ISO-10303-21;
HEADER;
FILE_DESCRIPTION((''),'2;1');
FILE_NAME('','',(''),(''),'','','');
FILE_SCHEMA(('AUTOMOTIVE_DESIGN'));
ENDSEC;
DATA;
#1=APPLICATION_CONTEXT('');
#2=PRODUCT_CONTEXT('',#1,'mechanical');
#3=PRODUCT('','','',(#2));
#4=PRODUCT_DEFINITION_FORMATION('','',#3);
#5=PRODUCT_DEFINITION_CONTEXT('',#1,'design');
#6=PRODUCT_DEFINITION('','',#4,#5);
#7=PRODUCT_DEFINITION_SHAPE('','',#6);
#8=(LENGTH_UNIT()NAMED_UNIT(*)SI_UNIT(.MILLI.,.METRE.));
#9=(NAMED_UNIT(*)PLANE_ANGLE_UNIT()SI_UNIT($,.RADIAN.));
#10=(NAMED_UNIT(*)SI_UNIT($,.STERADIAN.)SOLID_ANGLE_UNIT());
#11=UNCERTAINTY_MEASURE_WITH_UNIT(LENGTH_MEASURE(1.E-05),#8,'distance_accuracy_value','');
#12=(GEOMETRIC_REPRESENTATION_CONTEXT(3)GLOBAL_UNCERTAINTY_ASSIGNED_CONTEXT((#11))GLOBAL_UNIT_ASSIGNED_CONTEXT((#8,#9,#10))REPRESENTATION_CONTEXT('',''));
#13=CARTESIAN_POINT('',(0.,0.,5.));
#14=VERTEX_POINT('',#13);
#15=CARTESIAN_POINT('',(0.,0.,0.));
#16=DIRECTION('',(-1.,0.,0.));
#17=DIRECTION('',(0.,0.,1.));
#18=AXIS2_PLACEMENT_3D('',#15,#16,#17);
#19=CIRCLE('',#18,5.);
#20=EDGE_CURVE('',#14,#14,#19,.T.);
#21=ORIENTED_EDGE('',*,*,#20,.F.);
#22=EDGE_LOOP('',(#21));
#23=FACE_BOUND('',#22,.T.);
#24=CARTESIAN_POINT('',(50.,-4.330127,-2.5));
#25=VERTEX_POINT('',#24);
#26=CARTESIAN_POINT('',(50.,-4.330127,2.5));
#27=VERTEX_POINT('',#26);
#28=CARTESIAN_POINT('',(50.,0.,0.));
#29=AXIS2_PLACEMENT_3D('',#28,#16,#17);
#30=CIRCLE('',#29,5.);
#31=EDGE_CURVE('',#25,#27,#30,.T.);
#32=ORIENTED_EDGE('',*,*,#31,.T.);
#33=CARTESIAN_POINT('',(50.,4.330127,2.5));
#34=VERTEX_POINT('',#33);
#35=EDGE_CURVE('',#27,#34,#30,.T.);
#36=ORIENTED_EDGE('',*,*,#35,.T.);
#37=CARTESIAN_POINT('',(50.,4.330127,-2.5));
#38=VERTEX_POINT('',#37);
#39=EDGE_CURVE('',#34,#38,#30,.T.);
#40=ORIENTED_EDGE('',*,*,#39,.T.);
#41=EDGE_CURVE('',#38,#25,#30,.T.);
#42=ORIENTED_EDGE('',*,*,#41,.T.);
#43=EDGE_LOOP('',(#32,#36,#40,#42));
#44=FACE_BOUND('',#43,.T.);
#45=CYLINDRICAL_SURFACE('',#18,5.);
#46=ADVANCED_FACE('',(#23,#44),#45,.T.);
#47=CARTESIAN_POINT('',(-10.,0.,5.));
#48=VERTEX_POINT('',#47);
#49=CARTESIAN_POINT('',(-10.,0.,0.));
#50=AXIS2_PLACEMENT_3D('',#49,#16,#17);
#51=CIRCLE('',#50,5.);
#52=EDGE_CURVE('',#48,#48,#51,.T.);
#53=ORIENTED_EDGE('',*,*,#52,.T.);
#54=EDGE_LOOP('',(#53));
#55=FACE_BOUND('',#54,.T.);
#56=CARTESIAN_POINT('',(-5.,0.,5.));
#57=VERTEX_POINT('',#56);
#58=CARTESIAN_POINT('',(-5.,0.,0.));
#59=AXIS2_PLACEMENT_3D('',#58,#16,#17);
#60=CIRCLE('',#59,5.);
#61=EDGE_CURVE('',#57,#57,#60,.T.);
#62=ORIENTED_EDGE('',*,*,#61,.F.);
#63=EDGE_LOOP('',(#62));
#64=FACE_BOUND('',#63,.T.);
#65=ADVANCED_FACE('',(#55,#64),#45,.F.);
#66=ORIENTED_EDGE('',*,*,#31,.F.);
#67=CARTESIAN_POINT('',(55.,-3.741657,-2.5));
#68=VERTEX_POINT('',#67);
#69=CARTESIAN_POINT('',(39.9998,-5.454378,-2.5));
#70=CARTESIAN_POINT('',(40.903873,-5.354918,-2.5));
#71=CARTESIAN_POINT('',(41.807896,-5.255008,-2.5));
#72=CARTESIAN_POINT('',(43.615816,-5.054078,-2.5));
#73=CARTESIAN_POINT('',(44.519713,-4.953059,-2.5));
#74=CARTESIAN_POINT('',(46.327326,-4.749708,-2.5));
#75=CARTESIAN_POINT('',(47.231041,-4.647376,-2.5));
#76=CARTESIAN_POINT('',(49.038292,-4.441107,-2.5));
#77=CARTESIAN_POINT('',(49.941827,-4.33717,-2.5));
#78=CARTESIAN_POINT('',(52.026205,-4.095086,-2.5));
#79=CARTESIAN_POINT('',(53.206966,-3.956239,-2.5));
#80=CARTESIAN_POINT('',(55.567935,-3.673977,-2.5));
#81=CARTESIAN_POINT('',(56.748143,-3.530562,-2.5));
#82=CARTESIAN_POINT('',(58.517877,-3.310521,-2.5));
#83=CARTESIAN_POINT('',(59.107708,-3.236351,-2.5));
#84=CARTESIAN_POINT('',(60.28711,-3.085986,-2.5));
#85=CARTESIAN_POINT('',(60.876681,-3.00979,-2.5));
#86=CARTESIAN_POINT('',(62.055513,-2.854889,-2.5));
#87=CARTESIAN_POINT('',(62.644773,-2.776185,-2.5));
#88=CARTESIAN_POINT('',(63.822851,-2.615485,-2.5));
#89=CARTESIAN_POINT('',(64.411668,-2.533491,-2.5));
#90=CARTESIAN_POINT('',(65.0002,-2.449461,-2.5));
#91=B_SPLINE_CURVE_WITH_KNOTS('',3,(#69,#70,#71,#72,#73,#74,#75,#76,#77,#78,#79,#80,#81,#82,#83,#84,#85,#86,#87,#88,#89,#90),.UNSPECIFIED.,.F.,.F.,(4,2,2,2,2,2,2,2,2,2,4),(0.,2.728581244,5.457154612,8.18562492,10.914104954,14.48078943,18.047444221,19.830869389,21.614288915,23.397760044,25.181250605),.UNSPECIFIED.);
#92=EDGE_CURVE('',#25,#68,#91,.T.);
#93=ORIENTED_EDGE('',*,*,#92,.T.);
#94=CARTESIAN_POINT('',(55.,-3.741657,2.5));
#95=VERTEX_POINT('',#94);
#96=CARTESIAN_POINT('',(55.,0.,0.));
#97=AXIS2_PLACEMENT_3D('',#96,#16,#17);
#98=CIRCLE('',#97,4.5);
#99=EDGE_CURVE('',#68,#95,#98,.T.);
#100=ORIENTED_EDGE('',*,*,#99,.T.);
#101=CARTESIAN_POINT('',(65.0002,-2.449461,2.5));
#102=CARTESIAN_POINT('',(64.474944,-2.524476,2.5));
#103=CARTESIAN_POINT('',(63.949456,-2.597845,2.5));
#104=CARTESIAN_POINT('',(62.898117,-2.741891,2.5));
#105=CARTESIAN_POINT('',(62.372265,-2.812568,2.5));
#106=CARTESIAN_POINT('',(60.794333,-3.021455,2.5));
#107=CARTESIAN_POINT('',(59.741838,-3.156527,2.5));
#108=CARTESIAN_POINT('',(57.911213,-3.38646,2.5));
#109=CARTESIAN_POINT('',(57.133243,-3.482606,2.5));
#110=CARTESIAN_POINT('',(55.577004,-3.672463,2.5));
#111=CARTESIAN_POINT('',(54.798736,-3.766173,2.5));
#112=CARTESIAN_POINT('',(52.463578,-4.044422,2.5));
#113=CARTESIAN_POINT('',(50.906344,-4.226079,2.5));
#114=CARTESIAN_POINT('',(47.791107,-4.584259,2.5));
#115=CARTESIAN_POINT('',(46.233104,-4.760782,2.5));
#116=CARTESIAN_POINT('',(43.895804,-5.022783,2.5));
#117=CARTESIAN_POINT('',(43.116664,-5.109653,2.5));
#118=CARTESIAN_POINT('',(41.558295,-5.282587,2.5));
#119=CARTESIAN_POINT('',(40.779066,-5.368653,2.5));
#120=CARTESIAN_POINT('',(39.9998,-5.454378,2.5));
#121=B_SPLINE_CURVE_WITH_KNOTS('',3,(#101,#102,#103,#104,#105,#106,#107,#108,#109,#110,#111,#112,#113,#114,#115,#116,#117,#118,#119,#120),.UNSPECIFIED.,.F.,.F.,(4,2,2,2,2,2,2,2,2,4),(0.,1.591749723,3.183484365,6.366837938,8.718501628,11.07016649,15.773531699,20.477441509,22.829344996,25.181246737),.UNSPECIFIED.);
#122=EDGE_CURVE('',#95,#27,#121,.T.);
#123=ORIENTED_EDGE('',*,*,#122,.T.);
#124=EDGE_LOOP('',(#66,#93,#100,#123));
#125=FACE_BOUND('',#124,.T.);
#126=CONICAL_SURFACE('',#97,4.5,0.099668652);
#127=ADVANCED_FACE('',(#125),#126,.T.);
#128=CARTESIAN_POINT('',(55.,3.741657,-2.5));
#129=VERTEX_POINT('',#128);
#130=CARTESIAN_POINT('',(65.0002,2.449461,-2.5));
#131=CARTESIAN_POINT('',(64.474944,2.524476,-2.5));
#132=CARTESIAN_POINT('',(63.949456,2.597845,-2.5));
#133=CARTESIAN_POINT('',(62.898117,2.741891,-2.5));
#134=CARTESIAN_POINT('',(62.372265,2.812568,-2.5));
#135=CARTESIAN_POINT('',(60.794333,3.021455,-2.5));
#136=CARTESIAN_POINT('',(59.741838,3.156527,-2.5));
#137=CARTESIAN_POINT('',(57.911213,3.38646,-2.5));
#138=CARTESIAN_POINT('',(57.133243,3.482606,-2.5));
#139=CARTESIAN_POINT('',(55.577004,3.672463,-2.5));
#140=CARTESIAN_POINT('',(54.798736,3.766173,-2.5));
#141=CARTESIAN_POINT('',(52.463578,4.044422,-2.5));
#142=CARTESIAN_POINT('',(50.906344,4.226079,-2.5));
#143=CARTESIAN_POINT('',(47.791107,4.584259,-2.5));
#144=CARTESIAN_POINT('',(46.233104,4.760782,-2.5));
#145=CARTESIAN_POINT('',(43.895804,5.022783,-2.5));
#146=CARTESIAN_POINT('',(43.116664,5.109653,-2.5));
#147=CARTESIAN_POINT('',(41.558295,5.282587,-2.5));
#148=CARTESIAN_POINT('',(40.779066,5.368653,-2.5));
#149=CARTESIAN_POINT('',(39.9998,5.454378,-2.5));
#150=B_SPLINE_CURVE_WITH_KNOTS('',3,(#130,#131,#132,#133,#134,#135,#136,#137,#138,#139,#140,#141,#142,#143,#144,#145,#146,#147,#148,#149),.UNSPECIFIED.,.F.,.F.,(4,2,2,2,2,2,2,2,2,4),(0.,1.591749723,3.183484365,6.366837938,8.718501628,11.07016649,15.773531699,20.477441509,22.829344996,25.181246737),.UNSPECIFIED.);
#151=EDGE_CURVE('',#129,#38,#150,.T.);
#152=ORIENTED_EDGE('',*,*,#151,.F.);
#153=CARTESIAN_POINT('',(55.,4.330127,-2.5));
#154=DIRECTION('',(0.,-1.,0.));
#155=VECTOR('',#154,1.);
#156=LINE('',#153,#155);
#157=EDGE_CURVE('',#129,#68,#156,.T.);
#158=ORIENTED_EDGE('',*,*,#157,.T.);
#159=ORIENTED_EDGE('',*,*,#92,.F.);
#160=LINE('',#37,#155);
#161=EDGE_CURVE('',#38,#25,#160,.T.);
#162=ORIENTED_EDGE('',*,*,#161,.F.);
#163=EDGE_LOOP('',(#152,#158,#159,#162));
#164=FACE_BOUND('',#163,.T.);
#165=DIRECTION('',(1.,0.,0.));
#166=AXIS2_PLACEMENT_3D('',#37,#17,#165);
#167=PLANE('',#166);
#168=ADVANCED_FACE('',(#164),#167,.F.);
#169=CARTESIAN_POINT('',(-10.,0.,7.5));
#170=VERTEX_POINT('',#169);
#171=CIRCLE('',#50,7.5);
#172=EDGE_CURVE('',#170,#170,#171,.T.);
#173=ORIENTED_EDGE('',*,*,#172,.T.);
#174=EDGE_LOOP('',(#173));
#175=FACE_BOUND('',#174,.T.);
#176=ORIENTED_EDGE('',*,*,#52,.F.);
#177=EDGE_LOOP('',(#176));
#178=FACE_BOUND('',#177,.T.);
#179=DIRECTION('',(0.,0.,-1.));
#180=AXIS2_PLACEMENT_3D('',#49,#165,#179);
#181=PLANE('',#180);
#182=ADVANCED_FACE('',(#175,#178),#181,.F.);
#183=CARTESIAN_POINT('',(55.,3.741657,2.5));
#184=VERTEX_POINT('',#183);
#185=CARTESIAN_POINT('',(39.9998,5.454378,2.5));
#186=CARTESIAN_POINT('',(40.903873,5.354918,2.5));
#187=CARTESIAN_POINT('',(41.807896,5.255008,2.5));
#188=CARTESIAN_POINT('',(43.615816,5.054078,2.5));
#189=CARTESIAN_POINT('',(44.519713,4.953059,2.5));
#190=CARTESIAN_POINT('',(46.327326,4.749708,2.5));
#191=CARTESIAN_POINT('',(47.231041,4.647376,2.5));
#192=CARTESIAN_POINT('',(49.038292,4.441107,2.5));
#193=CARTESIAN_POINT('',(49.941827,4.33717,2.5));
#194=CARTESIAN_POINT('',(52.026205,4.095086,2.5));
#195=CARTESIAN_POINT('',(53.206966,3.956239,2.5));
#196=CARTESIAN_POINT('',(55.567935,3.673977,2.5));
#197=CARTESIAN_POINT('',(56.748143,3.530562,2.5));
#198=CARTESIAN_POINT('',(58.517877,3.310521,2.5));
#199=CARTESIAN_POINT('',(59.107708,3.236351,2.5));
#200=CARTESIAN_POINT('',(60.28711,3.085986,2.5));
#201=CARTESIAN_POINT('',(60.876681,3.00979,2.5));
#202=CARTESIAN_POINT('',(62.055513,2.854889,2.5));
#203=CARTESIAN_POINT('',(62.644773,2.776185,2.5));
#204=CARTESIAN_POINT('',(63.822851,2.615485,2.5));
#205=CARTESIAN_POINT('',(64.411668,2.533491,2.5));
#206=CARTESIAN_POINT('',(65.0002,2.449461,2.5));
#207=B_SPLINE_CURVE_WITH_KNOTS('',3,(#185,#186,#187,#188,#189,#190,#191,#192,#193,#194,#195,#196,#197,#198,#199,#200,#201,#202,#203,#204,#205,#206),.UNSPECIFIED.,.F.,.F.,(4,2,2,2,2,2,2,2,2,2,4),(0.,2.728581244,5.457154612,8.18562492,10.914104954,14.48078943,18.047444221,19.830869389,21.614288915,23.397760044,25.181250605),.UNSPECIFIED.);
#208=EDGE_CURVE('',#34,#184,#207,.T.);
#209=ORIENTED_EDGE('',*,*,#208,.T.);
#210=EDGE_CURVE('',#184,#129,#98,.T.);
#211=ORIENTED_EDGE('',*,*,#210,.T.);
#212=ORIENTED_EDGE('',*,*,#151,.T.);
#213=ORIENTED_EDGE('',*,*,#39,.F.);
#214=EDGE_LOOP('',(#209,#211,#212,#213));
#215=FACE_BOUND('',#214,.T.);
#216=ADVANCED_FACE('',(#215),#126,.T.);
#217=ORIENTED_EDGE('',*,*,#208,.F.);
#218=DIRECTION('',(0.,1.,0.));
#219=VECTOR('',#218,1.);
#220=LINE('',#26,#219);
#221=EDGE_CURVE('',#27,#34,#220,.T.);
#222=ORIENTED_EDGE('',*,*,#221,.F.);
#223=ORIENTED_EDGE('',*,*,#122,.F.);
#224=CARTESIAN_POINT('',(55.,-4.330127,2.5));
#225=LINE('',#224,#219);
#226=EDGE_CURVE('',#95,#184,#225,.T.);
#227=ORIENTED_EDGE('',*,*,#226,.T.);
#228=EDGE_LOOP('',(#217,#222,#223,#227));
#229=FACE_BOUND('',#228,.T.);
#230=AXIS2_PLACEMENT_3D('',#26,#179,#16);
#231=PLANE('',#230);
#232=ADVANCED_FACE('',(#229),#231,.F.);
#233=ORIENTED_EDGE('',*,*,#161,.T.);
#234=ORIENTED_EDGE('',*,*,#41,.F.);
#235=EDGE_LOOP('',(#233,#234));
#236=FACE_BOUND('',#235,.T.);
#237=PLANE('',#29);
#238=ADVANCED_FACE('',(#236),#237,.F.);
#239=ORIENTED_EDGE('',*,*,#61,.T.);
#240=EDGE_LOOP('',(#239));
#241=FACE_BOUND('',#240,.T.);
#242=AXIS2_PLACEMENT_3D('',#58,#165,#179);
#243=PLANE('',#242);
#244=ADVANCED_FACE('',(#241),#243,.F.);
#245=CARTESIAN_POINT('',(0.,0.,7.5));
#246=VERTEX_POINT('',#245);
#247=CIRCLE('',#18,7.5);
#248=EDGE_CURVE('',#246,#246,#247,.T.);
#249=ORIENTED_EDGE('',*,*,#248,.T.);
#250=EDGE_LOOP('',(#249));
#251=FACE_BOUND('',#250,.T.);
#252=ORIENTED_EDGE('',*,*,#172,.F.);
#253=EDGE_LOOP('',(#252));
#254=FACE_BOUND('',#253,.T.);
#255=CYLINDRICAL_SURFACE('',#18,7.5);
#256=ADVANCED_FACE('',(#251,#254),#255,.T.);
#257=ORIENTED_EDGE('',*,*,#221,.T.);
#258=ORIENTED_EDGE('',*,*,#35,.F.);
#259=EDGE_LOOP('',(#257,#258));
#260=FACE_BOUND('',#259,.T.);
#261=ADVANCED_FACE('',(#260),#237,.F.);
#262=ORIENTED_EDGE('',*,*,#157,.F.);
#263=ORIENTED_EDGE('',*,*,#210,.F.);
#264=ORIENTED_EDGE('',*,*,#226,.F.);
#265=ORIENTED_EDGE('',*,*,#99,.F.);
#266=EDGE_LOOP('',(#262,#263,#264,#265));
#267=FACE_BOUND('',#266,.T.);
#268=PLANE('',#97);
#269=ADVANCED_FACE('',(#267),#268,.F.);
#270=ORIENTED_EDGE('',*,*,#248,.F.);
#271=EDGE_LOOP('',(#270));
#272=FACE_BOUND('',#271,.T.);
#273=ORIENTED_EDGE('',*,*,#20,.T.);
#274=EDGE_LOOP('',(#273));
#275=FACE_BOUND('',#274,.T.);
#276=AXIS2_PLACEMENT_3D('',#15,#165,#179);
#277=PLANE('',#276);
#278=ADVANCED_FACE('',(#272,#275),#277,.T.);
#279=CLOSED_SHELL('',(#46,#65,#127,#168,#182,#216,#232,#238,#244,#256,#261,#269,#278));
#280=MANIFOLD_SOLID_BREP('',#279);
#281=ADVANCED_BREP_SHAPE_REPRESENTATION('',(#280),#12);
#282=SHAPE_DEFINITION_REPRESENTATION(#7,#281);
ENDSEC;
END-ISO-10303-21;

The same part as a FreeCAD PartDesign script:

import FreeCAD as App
import Part
import Sketcher


def add_polygon(sketch, points):
    """Adds a closed chain of lines whose ends are joined by coincident constraints."""
    first, n = sketch.GeometryCount, len(points)
    for a, b in zip(points, points[1:] + points[:1]):
        sketch.addGeometry(Part.LineSegment(App.Vector(*a, 0), App.Vector(*b, 0)), False)
    for i in range(n):
        sketch.addConstraint(Sketcher.Constraint("Coincident", first + i, 2, first + (i + 1) % n, 1))

doc = App.newDocument("Part")
params = doc.addObject("Spreadsheet::Sheet", "Params")
for row, (alias, value) in enumerate([
    ("sketch1_width", "60 mm"),
    ("sketch1_width2", "50 mm"),
    ("sketch1_width3", "10 mm"),
    ("sketch1_width4", "5 mm"),
    ("sketch1_height", "4.5 mm"),
    ("revolution_angle", "360 deg"),
    ("sketch2_height", "2.5 mm"),
    ("pocket1_length", "5 mm"),
], start=1):
    params.set(f"A{row}", alias)
    params.set(f"B{row}", "=" + value)
    params.setAlias(f"B{row}", alias)

body = doc.addObject("PartDesign::Body", "Body")

sketch1 = doc.addObject("Sketcher::SketchObject", "Sketch")
body.addObject(sketch1)
sketch1.AttachmentSupport = (doc.XY_Plane, [""])
sketch1.MapMode = "FlatFace"
add_polygon(sketch1, [(-5, 5), (-5, 0), (55, 0), (55, 4.5), (50, 5), (0, 5), (0, 7.5), (-10, 7.5), (-10, 5)])
sketch1.addConstraint([
    Sketcher.Constraint("Vertical", 0),
    Sketcher.Constraint("Horizontal", 1),
    Sketcher.Constraint("Vertical", 2),
    Sketcher.Constraint("Horizontal", 4),
    Sketcher.Constraint("Vertical", 5),
    Sketcher.Constraint("Horizontal", 6),
    Sketcher.Constraint("Vertical", 7),
    Sketcher.Constraint("Horizontal", 8),
    Sketcher.Constraint("PointOnObject", 0, 2, -1),
    Sketcher.Constraint("PointOnObject", 4, 2, -2),
    Sketcher.Constraint("Horizontal", 4, 2, 7, 2),
    Sketcher.Constraint("Equal", 8, 0),
    Sketcher.Constraint("DistanceX", 1, 1, 1, 2, 60.0),
    Sketcher.Constraint("DistanceX", 4, 2, 4, 1, 50.0),
    Sketcher.Constraint("DistanceX", 6, 2, 6, 1, 10.0),
    Sketcher.Constraint("DistanceX", 8, 1, 8, 2, 5.0),
    Sketcher.Constraint("DistanceY", 2, 1, 2, 2, 4.5),
    Sketcher.Constraint("DistanceY", 5, 1, 5, 2, 2.5),
])
sketch1.setExpression("Constraints[21]", "Params.sketch1_width")
sketch1.setExpression("Constraints[22]", "Params.sketch1_width2")
sketch1.setExpression("Constraints[23]", "Params.sketch1_width3")
sketch1.setExpression("Constraints[24]", "Params.sketch1_width4")
sketch1.setExpression("Constraints[25]", "Params.sketch1_height")
revolution = doc.addObject("PartDesign::Revolution", "Revolution")
body.addObject(revolution)
revolution.Profile = sketch1
revolution.ReferenceAxis = (sketch1, ["H_Axis"])
revolution.setExpression("Angle", "Params.revolution_angle")

sketch2 = doc.addObject("Sketcher::SketchObject", "Sketch001")
body.addObject(sketch2)
sketch2.AttachmentSupport = (doc.YZ_Plane, [""])
sketch2.MapMode = "FlatFace"
sketch2.AttachmentOffset = App.Placement(App.Vector(0, 0, 55), App.Rotation())
add_polygon(sketch2, [(4.330127, 5), (-4.330127, 5), (-4.330127, 2.5), (4.330127, 2.5)])
add_polygon(sketch2, [(4.330127, -2.5), (-4.330127, -2.5), (-4.330127, -5), (4.330127, -5)])
sketch2.addConstraint([
    Sketcher.Constraint("Horizontal", 0),
    Sketcher.Constraint("Vertical", 1),
    Sketcher.Constraint("Horizontal", 2),
    Sketcher.Constraint("Vertical", 3),
    Sketcher.Constraint("Horizontal", 4),
    Sketcher.Constraint("Vertical", 5),
    Sketcher.Constraint("Horizontal", 6),
    Sketcher.Constraint("Vertical", 7),
    Sketcher.Constraint("Symmetric", 2, 2, 4, 2, -1, 1),
    Sketcher.Constraint("Symmetric", 0, 2, 6, 2, -1, 1),
    Sketcher.Constraint("Vertical", 1, 2, 4, 2),
    Sketcher.Constraint("DistanceY", 1, 2, 1, 1, 2.5),
    Sketcher.Constraint("DistanceY", -1, 1, 0, 2, 5.0),
    Sketcher.Constraint("DistanceX", 0, 2, 0, 1, 8.660254),
])
sketch2.setExpression("Constraints[19]", "Params.sketch2_height")
pocket1 = doc.addObject("PartDesign::Pocket", "Pocket")
body.addObject(pocket1)
pocket1.Profile = sketch2
pocket1.setExpression("Length", "Params.pocket1_length")

doc.recompute()
